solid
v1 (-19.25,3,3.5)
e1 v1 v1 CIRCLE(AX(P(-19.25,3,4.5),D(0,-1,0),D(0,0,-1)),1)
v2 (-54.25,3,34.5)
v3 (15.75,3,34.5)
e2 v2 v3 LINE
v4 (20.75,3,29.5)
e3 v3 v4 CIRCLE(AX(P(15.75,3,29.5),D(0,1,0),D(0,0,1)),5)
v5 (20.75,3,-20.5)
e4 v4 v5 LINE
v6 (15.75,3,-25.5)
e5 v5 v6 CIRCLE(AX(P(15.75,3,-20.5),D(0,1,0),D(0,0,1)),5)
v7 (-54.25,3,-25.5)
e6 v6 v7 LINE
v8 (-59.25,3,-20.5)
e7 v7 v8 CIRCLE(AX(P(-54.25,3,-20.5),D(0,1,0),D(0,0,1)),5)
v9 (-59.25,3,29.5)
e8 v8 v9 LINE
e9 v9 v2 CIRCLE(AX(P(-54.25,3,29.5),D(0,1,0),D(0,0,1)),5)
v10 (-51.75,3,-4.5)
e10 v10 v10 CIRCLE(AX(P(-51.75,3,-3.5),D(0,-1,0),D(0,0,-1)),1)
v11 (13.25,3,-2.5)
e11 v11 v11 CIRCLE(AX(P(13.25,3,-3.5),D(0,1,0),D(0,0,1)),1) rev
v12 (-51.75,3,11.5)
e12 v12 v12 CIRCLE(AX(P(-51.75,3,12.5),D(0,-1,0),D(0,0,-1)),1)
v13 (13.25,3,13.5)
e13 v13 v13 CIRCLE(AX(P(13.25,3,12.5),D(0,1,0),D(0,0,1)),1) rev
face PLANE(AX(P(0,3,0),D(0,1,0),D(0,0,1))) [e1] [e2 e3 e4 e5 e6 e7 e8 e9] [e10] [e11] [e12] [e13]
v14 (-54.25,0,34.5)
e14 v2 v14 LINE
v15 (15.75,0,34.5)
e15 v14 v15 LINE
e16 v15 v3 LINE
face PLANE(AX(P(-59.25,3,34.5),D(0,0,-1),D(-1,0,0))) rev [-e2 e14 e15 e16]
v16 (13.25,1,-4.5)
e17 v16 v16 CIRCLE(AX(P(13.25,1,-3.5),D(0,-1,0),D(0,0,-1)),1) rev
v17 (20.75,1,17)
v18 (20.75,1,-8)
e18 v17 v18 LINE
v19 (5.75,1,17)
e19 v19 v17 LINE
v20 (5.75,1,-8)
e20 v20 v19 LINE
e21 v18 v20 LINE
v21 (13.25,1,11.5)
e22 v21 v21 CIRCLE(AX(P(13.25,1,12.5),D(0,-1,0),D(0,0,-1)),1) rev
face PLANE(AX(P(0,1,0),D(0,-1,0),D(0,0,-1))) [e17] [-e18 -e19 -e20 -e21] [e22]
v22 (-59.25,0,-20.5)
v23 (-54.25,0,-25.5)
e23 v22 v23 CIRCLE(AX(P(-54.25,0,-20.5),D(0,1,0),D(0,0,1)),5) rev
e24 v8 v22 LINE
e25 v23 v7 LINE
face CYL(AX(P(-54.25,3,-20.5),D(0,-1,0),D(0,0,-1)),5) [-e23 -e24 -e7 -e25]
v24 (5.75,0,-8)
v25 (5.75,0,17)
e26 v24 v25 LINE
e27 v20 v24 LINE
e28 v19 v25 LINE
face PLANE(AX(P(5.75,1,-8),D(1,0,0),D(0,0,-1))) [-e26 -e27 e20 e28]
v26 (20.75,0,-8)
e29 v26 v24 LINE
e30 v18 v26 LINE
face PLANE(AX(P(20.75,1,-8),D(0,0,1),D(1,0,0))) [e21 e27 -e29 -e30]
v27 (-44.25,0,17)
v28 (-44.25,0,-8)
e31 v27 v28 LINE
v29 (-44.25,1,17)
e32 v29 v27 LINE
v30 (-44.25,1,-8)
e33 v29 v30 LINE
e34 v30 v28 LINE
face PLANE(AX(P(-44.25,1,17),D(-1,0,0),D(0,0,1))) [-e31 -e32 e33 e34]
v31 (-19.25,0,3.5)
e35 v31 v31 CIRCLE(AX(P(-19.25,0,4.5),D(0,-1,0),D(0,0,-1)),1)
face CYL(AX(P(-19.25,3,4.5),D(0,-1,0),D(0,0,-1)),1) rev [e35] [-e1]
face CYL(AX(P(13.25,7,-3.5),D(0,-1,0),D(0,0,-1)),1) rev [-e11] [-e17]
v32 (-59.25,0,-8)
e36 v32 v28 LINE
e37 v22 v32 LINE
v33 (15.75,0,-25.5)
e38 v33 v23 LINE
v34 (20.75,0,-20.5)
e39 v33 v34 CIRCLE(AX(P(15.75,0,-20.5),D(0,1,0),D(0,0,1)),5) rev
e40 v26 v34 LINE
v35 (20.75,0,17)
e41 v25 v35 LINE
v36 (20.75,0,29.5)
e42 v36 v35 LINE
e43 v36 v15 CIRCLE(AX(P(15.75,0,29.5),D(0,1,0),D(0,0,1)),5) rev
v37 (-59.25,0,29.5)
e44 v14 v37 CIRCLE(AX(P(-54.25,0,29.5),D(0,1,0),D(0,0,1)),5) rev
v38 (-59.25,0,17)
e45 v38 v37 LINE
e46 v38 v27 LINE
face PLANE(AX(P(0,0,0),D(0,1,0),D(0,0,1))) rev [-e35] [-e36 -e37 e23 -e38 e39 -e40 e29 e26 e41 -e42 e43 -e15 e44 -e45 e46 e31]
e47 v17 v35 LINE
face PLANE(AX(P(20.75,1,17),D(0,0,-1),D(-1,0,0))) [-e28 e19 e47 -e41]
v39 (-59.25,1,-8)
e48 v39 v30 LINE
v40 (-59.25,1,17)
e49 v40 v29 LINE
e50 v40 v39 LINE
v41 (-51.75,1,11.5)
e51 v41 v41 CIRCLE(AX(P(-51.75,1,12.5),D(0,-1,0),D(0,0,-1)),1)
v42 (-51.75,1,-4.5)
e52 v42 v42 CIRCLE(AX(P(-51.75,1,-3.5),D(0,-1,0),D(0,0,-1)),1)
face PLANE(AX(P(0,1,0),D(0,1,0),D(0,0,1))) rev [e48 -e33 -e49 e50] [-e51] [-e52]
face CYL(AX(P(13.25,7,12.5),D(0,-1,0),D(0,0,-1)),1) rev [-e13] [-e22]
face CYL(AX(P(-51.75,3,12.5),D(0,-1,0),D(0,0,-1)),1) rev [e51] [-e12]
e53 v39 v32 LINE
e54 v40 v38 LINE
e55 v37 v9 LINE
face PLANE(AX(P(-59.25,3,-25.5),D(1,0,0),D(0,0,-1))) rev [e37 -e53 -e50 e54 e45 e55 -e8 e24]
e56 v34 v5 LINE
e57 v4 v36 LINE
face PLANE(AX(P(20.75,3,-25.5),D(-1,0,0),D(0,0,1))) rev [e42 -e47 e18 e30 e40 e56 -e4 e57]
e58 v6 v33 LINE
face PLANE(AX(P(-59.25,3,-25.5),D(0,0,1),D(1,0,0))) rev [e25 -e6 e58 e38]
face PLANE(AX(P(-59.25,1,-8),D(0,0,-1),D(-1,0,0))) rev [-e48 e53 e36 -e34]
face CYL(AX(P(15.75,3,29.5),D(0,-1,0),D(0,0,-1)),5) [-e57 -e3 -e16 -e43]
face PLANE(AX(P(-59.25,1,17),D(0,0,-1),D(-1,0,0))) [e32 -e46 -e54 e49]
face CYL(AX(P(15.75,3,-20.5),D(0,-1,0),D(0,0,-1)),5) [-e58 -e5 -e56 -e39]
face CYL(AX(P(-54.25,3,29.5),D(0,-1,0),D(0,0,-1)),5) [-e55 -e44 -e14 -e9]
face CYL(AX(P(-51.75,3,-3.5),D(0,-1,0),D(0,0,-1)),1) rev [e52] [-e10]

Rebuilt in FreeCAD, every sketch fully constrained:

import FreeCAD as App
import Part
import Sketcher
from FreeCAD import Vector


def edges_at(feature, points):
    """Names of the edges that pass closest to the given points."""
    edges = feature.Shape.Edges
    near = lambda p: min(range(len(edges)), key=lambda i: edges[i].distToShape(Part.Vertex(*p))[0])
    return sorted({f"Edge{near(p) + 1}" for p in points})


def add_polygon(sketch, points):
    """Adds a closed chain of lines whose ends are joined by coincident constraints."""
    first, n = sketch.GeometryCount, len(points)
    for a, b in zip(points, points[1:] + points[:1]):
        sketch.addGeometry(Part.LineSegment(App.Vector(*a, 0), App.Vector(*b, 0)), False)
    for i in range(n):
        sketch.addConstraint(Sketcher.Constraint("Coincident", first + i, 2, first + (i + 1) % n, 1))

doc = App.newDocument("Part")
body = doc.addObject("PartDesign::Body", "Body")

# Sketch on XZ plane
sketch1 = body.newObject("Sketcher::SketchObject", "Sketch")
sketch1.AttachmentSupport = (doc.getObject("XZ_Plane"), [""])
sketch1.MapMode = "FlatFace"
add_polygon(sketch1, [(-59, -26), (-59, 34), (21, 34), (21, -26)])  # lines 0-3
sketch1.addConstraint(Sketcher.Constraint("Vertical", 0))
sketch1.addConstraint(Sketcher.Constraint("Horizontal", 1))
sketch1.addConstraint(Sketcher.Constraint("Vertical", 2))
sketch1.addConstraint(Sketcher.Constraint("Horizontal", 3))
sketch1.addConstraint(Sketcher.Constraint("DistanceX", 1, 1, 1, 2, 80.0))
sketch1.addConstraint(Sketcher.Constraint("DistanceY", 0, 1, 0, 2, 60.0))
sketch1.addConstraint(Sketcher.Constraint("DistanceY", -1, 1, 0, 2, 34.5))
sketch1.addConstraint(Sketcher.Constraint("DistanceX", 0, 2, -1, 1, 59.25))
pad1 = body.newObject("PartDesign::Pad", "Pad")
pad1.Profile = sketch1
pad1.Length = 3
pad1.Reversed = True

# Sketch on XZ plane
sketch2 = body.newObject("Sketcher::SketchObject", "Sketch001")
sketch2.AttachmentSupport = (doc.getObject("XZ_Plane"), [""])
sketch2.MapMode = "FlatFace"
add_polygon(sketch2, [(-59, 17), (-59, -8), (-44, -8), (-44, 17)])  # lines 0-3
sketch2.addConstraint(Sketcher.Constraint("Vertical", 0))
sketch2.addConstraint(Sketcher.Constraint("Horizontal", 1))
sketch2.addConstraint(Sketcher.Constraint("Vertical", 2))
sketch2.addConstraint(Sketcher.Constraint("Horizontal", 3))
sketch2.addConstraint(Sketcher.Constraint("DistanceX", 1, 1, 1, 2, 15.0))
sketch2.addConstraint(Sketcher.Constraint("DistanceY", 0, 2, 0, 1, 25.0))
sketch2.addConstraint(Sketcher.Constraint("DistanceY", 0, 2, -1, 1, 8.0))
sketch2.addConstraint(Sketcher.Constraint("DistanceX", 0, 2, -1, 1, 59.25))
pocket1 = body.newObject("PartDesign::Pocket", "Pocket")
pocket1.Profile = sketch2
pocket1.Length = 1

# Sketch on XZ plane
sketch3 = body.newObject("Sketcher::SketchObject", "Sketch002")
sketch3.AttachmentSupport = (doc.getObject("XZ_Plane"), [""])
sketch3.MapMode = "FlatFace"
sketch3.AttachmentOffset = App.Placement(Vector(0, 0, -1), App.Rotation())
sketch3.addGeometry(Part.Circle(Vector(-51.8, 12.5, 0), Vector(0, 0, 1), 1), False)
sketch3.addGeometry(Part.Circle(Vector(-51.8, -3.5, 0), Vector(0, 0, 1), 1), False)
sketch3.addConstraint(Sketcher.Constraint("Equal", 0, 1))
sketch3.addConstraint(Sketcher.Constraint("Vertical", 0, 3, 1, 3))
sketch3.addConstraint(Sketcher.Constraint("Diameter", 0, 2.0))
sketch3.addConstraint(Sketcher.Constraint("DistanceY", 1, 3, 0, 3, 16.0))
sketch3.addConstraint(Sketcher.Constraint("DistanceY", -1, 1, 0, 3, 12.5))
sketch3.addConstraint(Sketcher.Constraint("DistanceX", 0, 3, -1, 1, 51.75))
pocket2 = body.newObject("PartDesign::Pocket", "Pocket001")
pocket2.Profile = sketch3
pocket2.Length = 2
doc.recompute()

fillet = body.newObject("PartDesign::Fillet", "Fillet")
fillet.Base = (pocket2, edges_at(pocket2, [
    (-59.25, 1.5, -25.5),
    (20.75, 1.5, -25.5),
    (20.75, 1.5, 34.5),
    (-59.25, 1.5, 34.5),
]))
fillet.Radius = 5

# Sketch on XZ plane
sketch4 = body.newObject("Sketcher::SketchObject", "Sketch003")
sketch4.AttachmentSupport = (doc.getObject("XZ_Plane"), [""])
sketch4.MapMode = "FlatFace"
sketch4.addGeometry(Part.Circle(Vector(-19.2, 4.5, 0), Vector(0, 0, 1), 1), False)
sketch4.addConstraint(Sketcher.Constraint("Diameter", 0, 2.0))
sketch4.addConstraint(Sketcher.Constraint("DistanceY", -1, 1, 0, 3, 4.5))
sketch4.addConstraint(Sketcher.Constraint("DistanceX", 0, 3, -1, 1, 19.25))
pocket3 = body.newObject("PartDesign::Pocket", "Pocket002")
pocket3.Profile = sketch4
pocket3.Length = 3

# Sketch on XZ plane
sketch5 = body.newObject("Sketcher::SketchObject", "Sketch004")
sketch5.AttachmentSupport = (doc.getObject("XZ_Plane"), [""])
sketch5.MapMode = "FlatFace"
add_polygon(sketch5, [(6, -8), (6, 17), (21, 17), (21, -8)])  # lines 0-3
sketch5.addConstraint(Sketcher.Constraint("Vertical", 0))
sketch5.addConstraint(Sketcher.Constraint("Horizontal", 1))
sketch5.addConstraint(Sketcher.Constraint("Vertical", 2))
sketch5.addConstraint(Sketcher.Constraint("Horizontal", 3))
sketch5.addConstraint(Sketcher.Constraint("DistanceX", 1, 1, 1, 2, 15.0))
sketch5.addConstraint(Sketcher.Constraint("DistanceY", 0, 1, 0, 2, 25.0))
sketch5.addConstraint(Sketcher.Constraint("DistanceY", -1, 1, 0, 2, 17.0))
sketch5.addConstraint(Sketcher.Constraint("DistanceX", -1, 1, 0, 2, 5.75))
pocket4 = body.newObject("PartDesign::Pocket", "Pocket003")
pocket4.Profile = sketch5
pocket4.Length = 1

# Sketch on XZ plane
sketch6 = body.newObject("Sketcher::SketchObject", "Sketch005")
sketch6.AttachmentSupport = (doc.getObject("XZ_Plane"), [""])
sketch6.MapMode = "FlatFace"
sketch6.addGeometry(Part.Circle(Vector(13.2, -3.5, 0), Vector(0, 0, 1), 1), False)
sketch6.addGeometry(Part.Circle(Vector(13.2, 12.5, 0), Vector(0, 0, 1), 1), False)
sketch6.addConstraint(Sketcher.Constraint("Equal", 0, 1))
sketch6.addConstraint(Sketcher.Constraint("Vertical", 0, 3, 1, 3))
sketch6.addConstraint(Sketcher.Constraint("Diameter", 0, 2.0))
sketch6.addConstraint(Sketcher.Constraint("DistanceY", 0, 3, 1, 3, 16.0))
sketch6.addConstraint(Sketcher.Constraint("DistanceY", 0, 3, -1, 1, 3.5))
sketch6.addConstraint(Sketcher.Constraint("DistanceX", -1, 1, 0, 3, 13.25))
pocket5 = body.newObject("PartDesign::Pocket", "Pocket004")
pocket5.Profile = sketch6
pocket5.Length = 7

doc.recompute()
